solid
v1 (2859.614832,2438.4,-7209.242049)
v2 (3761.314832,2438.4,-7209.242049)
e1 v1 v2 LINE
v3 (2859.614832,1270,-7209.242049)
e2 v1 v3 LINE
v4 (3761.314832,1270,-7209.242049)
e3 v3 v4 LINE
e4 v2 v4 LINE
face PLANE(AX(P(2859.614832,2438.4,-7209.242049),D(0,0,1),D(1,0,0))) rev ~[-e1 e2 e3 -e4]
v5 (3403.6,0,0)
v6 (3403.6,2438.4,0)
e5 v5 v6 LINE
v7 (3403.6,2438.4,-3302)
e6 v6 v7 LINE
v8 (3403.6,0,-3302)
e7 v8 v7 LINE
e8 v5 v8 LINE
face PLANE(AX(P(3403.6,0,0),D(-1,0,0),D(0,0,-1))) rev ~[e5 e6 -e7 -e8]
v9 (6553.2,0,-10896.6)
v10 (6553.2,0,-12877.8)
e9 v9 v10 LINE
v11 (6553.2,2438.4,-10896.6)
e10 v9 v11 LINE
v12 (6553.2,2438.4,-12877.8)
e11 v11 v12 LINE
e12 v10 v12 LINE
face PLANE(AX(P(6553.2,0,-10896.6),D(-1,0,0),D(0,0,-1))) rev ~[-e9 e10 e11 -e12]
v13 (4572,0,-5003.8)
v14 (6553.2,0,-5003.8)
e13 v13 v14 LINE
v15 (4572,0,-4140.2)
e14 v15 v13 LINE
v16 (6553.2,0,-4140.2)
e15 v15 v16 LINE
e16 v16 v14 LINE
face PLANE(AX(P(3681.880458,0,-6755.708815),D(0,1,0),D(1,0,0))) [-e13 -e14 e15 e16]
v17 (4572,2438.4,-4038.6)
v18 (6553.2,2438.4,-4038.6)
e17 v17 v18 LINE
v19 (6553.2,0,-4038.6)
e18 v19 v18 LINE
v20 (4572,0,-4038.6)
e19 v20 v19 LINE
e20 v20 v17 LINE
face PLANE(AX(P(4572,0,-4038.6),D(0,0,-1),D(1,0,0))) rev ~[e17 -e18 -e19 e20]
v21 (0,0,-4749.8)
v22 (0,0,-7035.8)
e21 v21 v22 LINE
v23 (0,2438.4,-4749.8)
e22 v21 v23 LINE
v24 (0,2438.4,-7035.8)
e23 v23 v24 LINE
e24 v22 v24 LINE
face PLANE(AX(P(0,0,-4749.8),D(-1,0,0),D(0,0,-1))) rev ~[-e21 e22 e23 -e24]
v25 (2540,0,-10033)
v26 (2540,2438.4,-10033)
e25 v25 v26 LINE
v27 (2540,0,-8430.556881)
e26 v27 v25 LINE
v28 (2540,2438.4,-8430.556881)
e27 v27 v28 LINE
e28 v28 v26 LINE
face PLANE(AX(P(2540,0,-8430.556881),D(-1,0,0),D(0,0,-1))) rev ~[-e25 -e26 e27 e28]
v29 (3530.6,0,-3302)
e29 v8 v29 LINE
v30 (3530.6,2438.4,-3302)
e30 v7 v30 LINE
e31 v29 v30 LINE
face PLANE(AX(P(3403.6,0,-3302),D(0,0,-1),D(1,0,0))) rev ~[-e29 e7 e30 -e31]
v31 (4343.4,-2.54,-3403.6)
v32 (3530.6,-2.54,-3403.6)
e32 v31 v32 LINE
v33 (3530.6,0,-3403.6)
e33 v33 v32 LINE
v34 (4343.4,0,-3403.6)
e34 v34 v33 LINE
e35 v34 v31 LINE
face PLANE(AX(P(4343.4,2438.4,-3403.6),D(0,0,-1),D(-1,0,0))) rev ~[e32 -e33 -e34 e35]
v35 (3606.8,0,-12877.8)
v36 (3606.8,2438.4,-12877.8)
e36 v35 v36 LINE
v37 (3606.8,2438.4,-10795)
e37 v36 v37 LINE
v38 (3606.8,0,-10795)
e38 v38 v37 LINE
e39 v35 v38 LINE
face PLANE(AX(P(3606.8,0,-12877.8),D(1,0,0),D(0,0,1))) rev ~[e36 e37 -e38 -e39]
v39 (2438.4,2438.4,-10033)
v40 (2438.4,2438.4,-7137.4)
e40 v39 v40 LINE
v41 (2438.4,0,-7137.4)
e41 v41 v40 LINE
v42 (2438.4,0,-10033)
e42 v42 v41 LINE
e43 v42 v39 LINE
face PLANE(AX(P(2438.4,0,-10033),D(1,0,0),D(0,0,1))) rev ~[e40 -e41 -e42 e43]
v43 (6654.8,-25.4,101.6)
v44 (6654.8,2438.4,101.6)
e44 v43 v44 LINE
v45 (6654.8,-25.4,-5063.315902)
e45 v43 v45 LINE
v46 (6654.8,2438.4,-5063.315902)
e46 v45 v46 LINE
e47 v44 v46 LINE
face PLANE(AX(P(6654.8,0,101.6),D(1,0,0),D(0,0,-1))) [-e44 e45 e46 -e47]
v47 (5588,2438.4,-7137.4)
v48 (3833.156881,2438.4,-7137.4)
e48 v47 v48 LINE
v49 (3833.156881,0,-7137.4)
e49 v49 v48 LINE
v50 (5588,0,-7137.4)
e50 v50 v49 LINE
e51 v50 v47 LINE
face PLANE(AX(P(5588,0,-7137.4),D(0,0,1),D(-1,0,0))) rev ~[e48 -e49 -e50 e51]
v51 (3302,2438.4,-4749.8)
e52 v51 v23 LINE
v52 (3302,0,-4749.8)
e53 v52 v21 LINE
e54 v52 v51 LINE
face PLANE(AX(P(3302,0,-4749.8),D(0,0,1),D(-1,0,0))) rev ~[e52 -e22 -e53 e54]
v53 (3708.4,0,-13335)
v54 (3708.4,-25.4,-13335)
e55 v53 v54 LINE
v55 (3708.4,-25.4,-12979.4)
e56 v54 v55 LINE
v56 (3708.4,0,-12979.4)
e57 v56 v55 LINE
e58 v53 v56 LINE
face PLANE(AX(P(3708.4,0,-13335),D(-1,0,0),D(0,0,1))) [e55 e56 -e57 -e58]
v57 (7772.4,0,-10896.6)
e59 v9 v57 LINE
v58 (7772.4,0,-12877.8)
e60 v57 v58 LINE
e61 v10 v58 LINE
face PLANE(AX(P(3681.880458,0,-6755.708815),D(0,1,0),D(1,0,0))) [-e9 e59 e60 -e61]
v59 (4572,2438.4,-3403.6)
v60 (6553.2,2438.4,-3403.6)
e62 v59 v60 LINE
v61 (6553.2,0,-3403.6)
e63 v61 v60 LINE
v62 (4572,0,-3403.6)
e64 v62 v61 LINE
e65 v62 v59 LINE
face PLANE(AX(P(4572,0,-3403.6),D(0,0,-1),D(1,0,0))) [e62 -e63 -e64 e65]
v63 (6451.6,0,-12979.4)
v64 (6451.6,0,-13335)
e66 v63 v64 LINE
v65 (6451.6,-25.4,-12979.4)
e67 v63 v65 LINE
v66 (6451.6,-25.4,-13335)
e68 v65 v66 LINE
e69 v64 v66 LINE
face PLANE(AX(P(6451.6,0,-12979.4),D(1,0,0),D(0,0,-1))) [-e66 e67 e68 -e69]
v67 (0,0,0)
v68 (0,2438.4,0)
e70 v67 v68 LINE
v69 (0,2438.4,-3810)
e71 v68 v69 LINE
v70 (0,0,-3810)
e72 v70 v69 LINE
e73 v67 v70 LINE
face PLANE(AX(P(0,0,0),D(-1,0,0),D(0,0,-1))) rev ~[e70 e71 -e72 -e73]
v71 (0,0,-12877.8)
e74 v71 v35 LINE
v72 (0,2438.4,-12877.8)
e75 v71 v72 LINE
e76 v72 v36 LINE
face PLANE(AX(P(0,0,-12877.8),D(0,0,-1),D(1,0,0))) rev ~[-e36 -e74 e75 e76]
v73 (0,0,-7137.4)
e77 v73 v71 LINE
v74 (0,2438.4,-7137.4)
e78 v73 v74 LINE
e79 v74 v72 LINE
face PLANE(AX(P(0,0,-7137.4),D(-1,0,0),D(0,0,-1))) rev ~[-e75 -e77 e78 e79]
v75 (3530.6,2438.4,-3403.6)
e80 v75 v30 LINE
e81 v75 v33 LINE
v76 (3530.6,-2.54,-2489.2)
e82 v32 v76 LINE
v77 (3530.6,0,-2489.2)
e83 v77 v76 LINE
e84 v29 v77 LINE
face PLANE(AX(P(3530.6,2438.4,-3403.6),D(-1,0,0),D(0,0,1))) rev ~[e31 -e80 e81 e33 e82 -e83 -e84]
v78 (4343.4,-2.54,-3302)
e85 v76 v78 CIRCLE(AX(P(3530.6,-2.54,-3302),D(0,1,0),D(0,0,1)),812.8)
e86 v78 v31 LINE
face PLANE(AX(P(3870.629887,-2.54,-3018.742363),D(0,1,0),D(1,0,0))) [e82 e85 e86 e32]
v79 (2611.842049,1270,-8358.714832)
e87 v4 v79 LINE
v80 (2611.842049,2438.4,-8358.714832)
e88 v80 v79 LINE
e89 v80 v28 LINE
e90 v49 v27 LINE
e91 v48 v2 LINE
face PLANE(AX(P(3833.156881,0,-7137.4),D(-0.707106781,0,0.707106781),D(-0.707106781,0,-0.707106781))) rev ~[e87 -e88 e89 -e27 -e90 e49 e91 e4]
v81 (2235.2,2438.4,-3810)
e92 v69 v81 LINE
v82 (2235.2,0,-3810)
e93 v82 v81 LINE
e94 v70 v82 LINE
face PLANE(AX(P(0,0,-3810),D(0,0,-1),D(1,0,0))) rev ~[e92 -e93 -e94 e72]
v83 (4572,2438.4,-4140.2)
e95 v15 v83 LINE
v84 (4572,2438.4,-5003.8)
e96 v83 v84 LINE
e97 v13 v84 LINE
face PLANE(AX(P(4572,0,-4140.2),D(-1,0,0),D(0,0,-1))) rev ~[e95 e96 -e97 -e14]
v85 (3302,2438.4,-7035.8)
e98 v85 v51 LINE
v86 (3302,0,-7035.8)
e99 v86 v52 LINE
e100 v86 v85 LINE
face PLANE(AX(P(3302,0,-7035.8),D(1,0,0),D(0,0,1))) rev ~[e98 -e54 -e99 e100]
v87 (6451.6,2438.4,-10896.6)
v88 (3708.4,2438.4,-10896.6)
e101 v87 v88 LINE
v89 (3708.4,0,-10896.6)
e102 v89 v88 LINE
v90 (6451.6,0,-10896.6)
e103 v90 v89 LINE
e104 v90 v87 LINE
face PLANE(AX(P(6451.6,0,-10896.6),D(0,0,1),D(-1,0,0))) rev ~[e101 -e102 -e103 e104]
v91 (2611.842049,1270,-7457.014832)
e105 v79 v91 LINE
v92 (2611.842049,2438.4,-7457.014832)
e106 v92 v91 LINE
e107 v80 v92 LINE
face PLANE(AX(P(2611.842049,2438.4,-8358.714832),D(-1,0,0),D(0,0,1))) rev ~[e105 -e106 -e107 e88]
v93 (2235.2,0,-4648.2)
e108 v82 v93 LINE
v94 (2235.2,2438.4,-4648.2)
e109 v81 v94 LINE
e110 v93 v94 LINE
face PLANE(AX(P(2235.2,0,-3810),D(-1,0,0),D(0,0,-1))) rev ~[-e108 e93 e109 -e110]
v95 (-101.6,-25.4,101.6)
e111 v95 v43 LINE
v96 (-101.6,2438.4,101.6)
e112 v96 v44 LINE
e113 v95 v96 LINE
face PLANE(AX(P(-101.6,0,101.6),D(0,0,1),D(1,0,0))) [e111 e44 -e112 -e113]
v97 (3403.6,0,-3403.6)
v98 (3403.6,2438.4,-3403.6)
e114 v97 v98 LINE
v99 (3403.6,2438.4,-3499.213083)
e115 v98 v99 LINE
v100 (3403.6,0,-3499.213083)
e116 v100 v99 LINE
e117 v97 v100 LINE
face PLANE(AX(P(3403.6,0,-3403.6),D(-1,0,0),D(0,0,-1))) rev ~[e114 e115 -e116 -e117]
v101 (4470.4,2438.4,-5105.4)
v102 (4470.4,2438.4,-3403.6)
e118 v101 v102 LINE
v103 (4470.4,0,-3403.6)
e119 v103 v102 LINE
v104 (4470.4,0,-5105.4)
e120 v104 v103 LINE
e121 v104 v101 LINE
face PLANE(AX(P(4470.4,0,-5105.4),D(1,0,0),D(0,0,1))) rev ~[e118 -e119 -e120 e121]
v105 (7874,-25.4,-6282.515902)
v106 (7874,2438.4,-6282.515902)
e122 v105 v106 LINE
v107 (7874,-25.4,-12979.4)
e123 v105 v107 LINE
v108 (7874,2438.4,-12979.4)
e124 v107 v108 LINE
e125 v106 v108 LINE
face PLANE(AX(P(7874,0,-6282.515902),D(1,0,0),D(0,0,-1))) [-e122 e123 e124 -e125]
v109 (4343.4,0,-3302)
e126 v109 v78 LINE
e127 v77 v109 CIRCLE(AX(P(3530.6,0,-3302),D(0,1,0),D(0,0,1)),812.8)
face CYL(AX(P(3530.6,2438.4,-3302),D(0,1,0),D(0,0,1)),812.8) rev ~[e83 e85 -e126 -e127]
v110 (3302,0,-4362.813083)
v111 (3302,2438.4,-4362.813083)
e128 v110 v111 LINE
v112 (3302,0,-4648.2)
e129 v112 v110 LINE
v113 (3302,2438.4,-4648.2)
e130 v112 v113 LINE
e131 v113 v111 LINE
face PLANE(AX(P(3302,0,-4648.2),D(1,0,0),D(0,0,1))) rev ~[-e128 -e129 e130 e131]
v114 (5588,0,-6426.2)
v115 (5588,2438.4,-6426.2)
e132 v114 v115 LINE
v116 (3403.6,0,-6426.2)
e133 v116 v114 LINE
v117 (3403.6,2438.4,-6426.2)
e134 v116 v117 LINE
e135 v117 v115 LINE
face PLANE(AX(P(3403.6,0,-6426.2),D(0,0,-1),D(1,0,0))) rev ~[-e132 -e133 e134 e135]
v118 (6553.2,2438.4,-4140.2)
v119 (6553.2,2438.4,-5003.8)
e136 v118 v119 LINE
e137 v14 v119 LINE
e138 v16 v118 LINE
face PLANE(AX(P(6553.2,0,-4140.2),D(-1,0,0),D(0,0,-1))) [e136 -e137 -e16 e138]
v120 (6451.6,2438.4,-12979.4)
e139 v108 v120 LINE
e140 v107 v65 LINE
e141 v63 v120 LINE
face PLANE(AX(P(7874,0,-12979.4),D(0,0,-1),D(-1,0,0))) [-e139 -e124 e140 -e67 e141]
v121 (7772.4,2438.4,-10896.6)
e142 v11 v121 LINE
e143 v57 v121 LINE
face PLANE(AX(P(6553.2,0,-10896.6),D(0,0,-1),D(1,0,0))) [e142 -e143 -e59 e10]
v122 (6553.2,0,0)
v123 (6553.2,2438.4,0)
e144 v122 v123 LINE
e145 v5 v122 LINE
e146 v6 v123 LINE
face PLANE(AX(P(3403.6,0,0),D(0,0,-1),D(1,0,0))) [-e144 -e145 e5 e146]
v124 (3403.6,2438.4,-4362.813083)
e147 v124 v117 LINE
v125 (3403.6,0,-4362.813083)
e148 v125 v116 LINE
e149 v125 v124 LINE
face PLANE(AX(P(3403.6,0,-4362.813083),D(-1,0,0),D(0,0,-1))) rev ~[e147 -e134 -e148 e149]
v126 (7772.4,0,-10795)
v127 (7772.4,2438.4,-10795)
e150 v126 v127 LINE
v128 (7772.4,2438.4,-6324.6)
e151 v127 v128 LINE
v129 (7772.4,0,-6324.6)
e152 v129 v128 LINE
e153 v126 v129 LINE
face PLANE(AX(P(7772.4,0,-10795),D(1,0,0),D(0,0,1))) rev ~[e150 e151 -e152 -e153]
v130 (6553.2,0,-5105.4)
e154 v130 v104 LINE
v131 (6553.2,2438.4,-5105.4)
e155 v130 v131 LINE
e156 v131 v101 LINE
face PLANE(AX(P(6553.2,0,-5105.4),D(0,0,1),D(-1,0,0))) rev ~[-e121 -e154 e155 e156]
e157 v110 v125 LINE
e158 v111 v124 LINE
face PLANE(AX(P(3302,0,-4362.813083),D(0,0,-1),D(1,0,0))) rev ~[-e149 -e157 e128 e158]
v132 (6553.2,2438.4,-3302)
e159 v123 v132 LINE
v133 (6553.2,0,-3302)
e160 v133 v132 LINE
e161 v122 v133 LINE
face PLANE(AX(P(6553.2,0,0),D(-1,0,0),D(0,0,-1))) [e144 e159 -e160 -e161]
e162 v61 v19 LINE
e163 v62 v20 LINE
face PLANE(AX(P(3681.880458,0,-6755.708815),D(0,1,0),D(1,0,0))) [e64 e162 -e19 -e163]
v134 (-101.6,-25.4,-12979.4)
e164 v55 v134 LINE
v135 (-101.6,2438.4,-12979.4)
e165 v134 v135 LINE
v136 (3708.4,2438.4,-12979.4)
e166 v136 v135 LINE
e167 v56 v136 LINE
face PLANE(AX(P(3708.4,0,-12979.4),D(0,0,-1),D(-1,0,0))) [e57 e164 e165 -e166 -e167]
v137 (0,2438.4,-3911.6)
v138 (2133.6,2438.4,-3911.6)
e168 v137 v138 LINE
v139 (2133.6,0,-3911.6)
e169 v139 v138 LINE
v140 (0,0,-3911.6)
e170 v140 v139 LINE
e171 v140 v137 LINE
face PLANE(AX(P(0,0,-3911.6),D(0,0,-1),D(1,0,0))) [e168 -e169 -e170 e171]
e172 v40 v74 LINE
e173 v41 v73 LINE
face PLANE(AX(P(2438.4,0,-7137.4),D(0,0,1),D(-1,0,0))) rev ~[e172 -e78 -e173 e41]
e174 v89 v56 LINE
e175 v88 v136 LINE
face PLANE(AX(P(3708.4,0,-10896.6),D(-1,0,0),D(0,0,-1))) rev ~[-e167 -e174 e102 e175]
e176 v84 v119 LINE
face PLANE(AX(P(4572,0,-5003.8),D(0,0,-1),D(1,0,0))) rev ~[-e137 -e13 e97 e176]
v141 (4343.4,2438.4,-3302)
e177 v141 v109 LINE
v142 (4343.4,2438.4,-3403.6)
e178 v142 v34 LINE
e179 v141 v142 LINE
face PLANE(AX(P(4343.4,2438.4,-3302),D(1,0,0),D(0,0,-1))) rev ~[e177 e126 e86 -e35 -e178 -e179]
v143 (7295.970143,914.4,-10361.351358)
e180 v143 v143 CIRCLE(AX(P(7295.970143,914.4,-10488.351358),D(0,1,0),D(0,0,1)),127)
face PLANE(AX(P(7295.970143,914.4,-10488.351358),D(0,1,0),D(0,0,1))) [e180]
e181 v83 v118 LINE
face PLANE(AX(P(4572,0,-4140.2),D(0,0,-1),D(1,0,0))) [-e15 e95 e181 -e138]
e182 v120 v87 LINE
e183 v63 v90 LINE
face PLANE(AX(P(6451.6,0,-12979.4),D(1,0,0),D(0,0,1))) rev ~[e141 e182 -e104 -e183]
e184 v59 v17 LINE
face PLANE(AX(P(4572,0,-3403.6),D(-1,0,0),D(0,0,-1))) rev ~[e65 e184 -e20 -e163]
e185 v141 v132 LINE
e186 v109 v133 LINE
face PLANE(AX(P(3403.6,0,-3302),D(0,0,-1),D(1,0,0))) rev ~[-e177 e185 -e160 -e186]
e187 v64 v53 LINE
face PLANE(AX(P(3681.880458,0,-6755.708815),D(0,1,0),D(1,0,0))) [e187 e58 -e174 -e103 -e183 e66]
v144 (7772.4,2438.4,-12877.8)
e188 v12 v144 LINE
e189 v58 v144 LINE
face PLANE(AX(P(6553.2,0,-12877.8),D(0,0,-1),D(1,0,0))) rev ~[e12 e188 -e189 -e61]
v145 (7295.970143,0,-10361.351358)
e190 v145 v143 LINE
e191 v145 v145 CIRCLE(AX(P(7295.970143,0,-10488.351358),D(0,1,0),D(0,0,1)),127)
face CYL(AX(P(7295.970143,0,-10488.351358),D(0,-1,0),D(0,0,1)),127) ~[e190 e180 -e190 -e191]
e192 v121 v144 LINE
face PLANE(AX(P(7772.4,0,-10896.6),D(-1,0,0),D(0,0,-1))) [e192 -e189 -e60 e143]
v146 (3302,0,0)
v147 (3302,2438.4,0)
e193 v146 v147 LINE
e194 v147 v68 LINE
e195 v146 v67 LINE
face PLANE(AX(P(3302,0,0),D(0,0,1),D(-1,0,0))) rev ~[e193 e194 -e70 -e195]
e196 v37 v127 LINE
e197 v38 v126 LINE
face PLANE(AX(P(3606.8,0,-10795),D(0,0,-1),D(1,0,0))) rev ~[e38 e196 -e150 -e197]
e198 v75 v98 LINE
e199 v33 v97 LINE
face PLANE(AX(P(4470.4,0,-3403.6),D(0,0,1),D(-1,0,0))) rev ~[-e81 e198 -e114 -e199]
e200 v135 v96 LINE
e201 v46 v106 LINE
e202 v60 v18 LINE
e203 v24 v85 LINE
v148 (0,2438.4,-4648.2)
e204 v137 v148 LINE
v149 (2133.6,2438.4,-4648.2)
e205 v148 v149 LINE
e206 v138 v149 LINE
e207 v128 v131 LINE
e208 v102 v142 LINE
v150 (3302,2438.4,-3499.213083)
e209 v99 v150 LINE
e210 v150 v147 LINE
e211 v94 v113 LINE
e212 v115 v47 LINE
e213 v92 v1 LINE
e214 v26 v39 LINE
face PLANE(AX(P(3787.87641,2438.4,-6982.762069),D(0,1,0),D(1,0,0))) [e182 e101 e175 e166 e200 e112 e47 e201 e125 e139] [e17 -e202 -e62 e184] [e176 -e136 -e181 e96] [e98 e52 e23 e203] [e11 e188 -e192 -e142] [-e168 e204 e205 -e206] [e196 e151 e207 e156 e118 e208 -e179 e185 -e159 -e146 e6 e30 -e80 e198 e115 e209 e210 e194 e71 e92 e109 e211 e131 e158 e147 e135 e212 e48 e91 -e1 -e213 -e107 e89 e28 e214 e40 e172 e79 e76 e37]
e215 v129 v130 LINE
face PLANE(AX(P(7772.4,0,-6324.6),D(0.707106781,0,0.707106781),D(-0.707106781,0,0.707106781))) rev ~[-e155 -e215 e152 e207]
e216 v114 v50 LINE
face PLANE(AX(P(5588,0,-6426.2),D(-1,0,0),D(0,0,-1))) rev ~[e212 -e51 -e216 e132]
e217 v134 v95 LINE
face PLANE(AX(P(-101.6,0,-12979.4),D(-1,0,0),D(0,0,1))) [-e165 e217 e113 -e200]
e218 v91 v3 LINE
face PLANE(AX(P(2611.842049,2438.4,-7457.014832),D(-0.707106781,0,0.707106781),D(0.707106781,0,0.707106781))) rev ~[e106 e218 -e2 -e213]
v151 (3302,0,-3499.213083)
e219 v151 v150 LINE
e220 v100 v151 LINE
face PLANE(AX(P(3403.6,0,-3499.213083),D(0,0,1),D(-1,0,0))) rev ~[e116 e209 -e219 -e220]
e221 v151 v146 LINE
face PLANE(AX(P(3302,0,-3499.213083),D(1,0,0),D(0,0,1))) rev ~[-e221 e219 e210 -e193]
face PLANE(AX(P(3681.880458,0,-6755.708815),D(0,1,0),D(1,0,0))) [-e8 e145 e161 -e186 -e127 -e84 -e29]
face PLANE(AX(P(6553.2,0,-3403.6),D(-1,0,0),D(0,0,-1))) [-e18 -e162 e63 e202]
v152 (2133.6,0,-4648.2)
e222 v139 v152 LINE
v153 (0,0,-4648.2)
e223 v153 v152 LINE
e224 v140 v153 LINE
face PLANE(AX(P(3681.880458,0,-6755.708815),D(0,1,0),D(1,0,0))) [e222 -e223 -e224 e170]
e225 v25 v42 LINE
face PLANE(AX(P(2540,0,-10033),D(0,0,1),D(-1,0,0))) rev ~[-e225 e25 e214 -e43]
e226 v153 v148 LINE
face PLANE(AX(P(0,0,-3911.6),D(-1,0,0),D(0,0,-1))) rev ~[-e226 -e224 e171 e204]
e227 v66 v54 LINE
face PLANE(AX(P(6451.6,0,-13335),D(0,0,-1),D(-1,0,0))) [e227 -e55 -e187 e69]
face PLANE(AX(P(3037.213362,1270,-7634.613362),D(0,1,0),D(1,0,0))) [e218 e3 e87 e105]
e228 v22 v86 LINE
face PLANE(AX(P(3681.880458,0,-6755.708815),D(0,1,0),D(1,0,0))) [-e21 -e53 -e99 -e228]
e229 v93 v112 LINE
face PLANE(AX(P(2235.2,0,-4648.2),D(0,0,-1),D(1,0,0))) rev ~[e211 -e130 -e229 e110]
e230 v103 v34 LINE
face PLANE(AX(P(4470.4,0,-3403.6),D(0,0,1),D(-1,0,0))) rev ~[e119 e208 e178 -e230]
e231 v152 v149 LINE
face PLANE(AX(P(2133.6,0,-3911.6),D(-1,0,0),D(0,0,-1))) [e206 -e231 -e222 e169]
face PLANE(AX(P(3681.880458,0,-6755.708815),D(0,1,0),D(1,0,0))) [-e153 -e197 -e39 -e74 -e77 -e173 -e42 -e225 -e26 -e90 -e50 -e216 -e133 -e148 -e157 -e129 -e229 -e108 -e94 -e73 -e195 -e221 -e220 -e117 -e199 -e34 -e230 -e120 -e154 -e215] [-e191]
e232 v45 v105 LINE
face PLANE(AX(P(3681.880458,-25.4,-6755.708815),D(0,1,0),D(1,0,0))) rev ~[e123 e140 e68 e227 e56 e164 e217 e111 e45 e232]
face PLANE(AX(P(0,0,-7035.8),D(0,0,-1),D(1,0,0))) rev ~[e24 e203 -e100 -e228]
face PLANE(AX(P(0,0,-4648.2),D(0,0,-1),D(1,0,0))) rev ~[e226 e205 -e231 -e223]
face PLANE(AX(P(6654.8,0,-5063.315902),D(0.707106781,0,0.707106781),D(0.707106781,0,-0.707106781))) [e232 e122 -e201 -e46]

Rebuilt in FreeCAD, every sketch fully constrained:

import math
import FreeCAD as App
import Part
import Sketcher
from FreeCAD import Vector
Q = App.Units.Quantity

doc = App.newDocument("Part")
params = doc.addObject("Spreadsheet::Sheet", "Params")
for row, (alias, value) in enumerate([
    ("sketch1_width", "108 in"),
    ("sketch1_width2", "150 in"),
    ("sketch1_width3", "266 in"),
    ("sketch1_width4", "56 in"),
    ("sketch1_width5", "84 in"),
    ("pad1_length", "96 in"),
    ("sketch2_width", "150 in"),
    ("sketch2_width2", "266 in"),
    ("sketch2_width3", "56 in"),
    ("sketch2_width4", "108 in"),
    ("sketch2_height", "515 in"),
    ("pad2_length", "1 in"),
    ("sketch3_radius", "32 in"),
    ("sketch3_height", "36 in"),
    ("pocket1_length", "96.1 in"),
    ("sketch4_length", "64 in"),
    ("sketch4_width", "35.5 in"),
    ("pocket2_length", "46 in"),
    ("sketch5_diameter", "10 in"),
    ("pad3_length", "36 in"),
], start=1):
    params.set(f"A{row}", alias)
    params.set(f"B{row}", "=" + value)
    params.setAlias(f"B{row}", alias)

body = doc.addObject("PartDesign::Body", "Body")

# Sketch on XZ plane
sketch1 = body.newObject("Sketcher::SketchObject", "Sketch")
sketch1.AttachmentSupport = (doc.getObject("XZ_Plane"), [""])
sketch1.MapMode = "FlatFace"
sketch1.addGeometry(Part.LineSegment(Vector(6451.6, -10896.6, 0), Vector(3708.4, -10896.6, 0)), False)
sketch1.addGeometry(Part.LineSegment(Vector(3708.4, -10896.6, 0), Vector(3708.4, -12979.4, 0)), False)
sketch1.addGeometry(Part.LineSegment(Vector(3708.4, -12979.4, 0), Vector(-101.6, -12979.4, 0)), False)
sketch1.addGeometry(Part.LineSegment(Vector(-101.6, -12979.4, 0), Vector(-101.6, 101.6, 0)), False)
sketch1.addGeometry(Part.LineSegment(Vector(-101.6, 101.6, 0), Vector(6654.8, 101.6, 0)), False)
sketch1.addGeometry(Part.LineSegment(Vector(6654.8, 101.6, 0), Vector(6654.8, -5063.315902, 0)), False)
sketch1.addGeometry(Part.LineSegment(Vector(6654.8, -5063.315902, 0), Vector(7874, -6282.515902, 0)), False)
sketch1.addGeometry(Part.LineSegment(Vector(7874, -6282.515902, 0), Vector(7874, -12979.4, 0)), False)
sketch1.addGeometry(Part.LineSegment(Vector(7874, -12979.4, 0), Vector(6451.6, -12979.4, 0)), False)
sketch1.addGeometry(Part.LineSegment(Vector(6451.6, -12979.4, 0), Vector(6451.6, -10896.6, 0)), False)
sketch1.addGeometry(Part.LineSegment(Vector(2133.6, -3911.6, 0), Vector(0, -3911.6, 0)), False)
sketch1.addGeometry(Part.LineSegment(Vector(0, -3911.6, 0), Vector(0, -4648.2, 0)), False)
sketch1.addGeometry(Part.LineSegment(Vector(0, -4648.2, 0), Vector(2133.6, -4648.2, 0)), False)
sketch1.addGeometry(Part.LineSegment(Vector(2133.6, -4648.2, 0), Vector(2133.6, -3911.6, 0)), False)
sketch1.addGeometry(Part.LineSegment(Vector(3302, -7035.8, 0), Vector(3302, -4749.8, 0)), False)
sketch1.addGeometry(Part.LineSegment(Vector(3302, -4749.8, 0), Vector(0, -4749.8, 0)), False)
sketch1.addGeometry(Part.LineSegment(Vector(0, -4749.8, 0), Vector(0, -7035.8, 0)), False)
sketch1.addGeometry(Part.LineSegment(Vector(0, -7035.8, 0), Vector(3302, -7035.8, 0)), False)
sketch1.addGeometry(Part.LineSegment(Vector(5588, -7137.4, 0), Vector(3833.156881, -7137.4, 0)), False)
sketch1.addGeometry(Part.LineSegment(Vector(3833.156881, -7137.4, 0), Vector(2540, -8430.556881, 0)), False)
sketch1.addGeometry(Part.LineSegment(Vector(2540, -8430.556881, 0), Vector(2540, -10033, 0)), False)
sketch1.addGeometry(Part.LineSegment(Vector(2540, -10033, 0), Vector(2438.4, -10033, 0)), False)
sketch1.addGeometry(Part.LineSegment(Vector(2438.4, -10033, 0), Vector(2438.4, -7137.4, 0)), False)
sketch1.addGeometry(Part.LineSegment(Vector(2438.4, -7137.4, 0), Vector(0, -7137.4, 0)), False)
sketch1.addGeometry(Part.LineSegment(Vector(0, -7137.4, 0), Vector(0, -12877.8, 0)), False)
sketch1.addGeometry(Part.LineSegment(Vector(0, -12877.8, 0), Vector(3606.8, -12877.8, 0)), False)
sketch1.addGeometry(Part.LineSegment(Vector(3606.8, -12877.8, 0), Vector(3606.8, -10795, 0)), False)
sketch1.addGeometry(Part.LineSegment(Vector(3606.8, -10795, 0), Vector(7772.4, -10795, 0)), False)
sketch1.addGeometry(Part.LineSegment(Vector(7772.4, -10795, 0), Vector(7772.4, -6324.6, 0)), False)
sketch1.addGeometry(Part.LineSegment(Vector(7772.4, -6324.6, 0), Vector(6553.2, -5105.4, 0)), False)
sketch1.addGeometry(Part.LineSegment(Vector(6553.2, -5105.4, 0), Vector(4470.4, -5105.4, 0)), False)
sketch1.addGeometry(Part.LineSegment(Vector(4470.4, -5105.4, 0), Vector(4470.4, -3403.6, 0)), False)
sketch1.addGeometry(Part.LineSegment(Vector(4470.4, -3403.6, 0), Vector(3403.6, -3403.6, 0)), False)
sketch1.addGeometry(Part.LineSegment(Vector(3403.6, -3403.6, 0), Vector(3403.6, -3499.213083, 0)), False)
sketch1.addGeometry(Part.LineSegment(Vector(3403.6, -3499.213083, 0), Vector(3302, -3499.213083, 0)), False)
sketch1.addGeometry(Part.LineSegment(Vector(3302, -3499.213083, 0), Vector(3302, 0, 0)), False)
sketch1.addGeometry(Part.LineSegment(Vector(3302, 0, 0), Vector(0, 0, 0)), False)
sketch1.addGeometry(Part.LineSegment(Vector(0, 0, 0), Vector(0, -3810, 0)), False)
sketch1.addGeometry(Part.LineSegment(Vector(0, -3810, 0), Vector(2235.2, -3810, 0)), False)
sketch1.addGeometry(Part.LineSegment(Vector(2235.2, -3810, 0), Vector(2235.2, -4648.2, 0)), False)
sketch1.addGeometry(Part.LineSegment(Vector(2235.2, -4648.2, 0), Vector(3302, -4648.2, 0)), False)
sketch1.addGeometry(Part.LineSegment(Vector(3302, -4648.2, 0), Vector(3302, -4362.813083, 0)), False)
sketch1.addGeometry(Part.LineSegment(Vector(3302, -4362.813083, 0), Vector(3403.6, -4362.813083, 0)), False)
sketch1.addGeometry(Part.LineSegment(Vector(3403.6, -4362.813083, 0), Vector(3403.6, -6426.2, 0)), False)
sketch1.addGeometry(Part.LineSegment(Vector(3403.6, -6426.2, 0), Vector(5588, -6426.2, 0)), False)
sketch1.addGeometry(Part.LineSegment(Vector(5588, -6426.2, 0), Vector(5588, -7137.4, 0)), False)
sketch1.addGeometry(Part.LineSegment(Vector(6553.2, 0, 0), Vector(3403.6, 0, 0)), False)
sketch1.addGeometry(Part.LineSegment(Vector(3403.6, 0, 0), Vector(3403.6, -3302, 0)), False)
sketch1.addGeometry(Part.LineSegment(Vector(3403.6, -3302, 0), Vector(6553.2, -3302, 0)), False)
sketch1.addGeometry(Part.LineSegment(Vector(6553.2, -3302, 0), Vector(6553.2, 0, 0)), False)
sketch1.addGeometry(Part.LineSegment(Vector(6553.2, -3403.6, 0), Vector(4572, -3403.6, 0)), False)
sketch1.addGeometry(Part.LineSegment(Vector(4572, -3403.6, 0), Vector(4572, -4038.6, 0)), False)
sketch1.addGeometry(Part.LineSegment(Vector(4572, -4038.6, 0), Vector(6553.2, -4038.6, 0)), False)
sketch1.addGeometry(Part.LineSegment(Vector(6553.2, -4038.6, 0), Vector(6553.2, -3403.6, 0)), False)
sketch1.addGeometry(Part.LineSegment(Vector(6553.2, -4140.2, 0), Vector(4572, -4140.2, 0)), False)
sketch1.addGeometry(Part.LineSegment(Vector(4572, -4140.2, 0), Vector(4572, -5003.8, 0)), False)
sketch1.addGeometry(Part.LineSegment(Vector(4572, -5003.8, 0), Vector(6553.2, -5003.8, 0)), False)
sketch1.addGeometry(Part.LineSegment(Vector(6553.2, -5003.8, 0), Vector(6553.2, -4140.2, 0)), False)
sketch1.addGeometry(Part.LineSegment(Vector(7772.4, -10896.6, 0), Vector(6553.2, -10896.6, 0)), False)
sketch1.addGeometry(Part.LineSegment(Vector(6553.2, -10896.6, 0), Vector(6553.2, -12877.8, 0)), False)
sketch1.addGeometry(Part.LineSegment(Vector(6553.2, -12877.8, 0), Vector(7772.4, -12877.8, 0)), False)
sketch1.addGeometry(Part.LineSegment(Vector(7772.4, -12877.8, 0), Vector(7772.4, -10896.6, 0)), False)
sketch1.addConstraint(Sketcher.Constraint("Coincident", 0, 2, 1, 1))
sketch1.addConstraint(Sketcher.Constraint("Coincident", 1, 2, 2, 1))
sketch1.addConstraint(Sketcher.Constraint("Coincident", 2, 2, 3, 1))
sketch1.addConstraint(Sketcher.Constraint("Coincident", 3, 2, 4, 1))
sketch1.addConstraint(Sketcher.Constraint("Coincident", 4, 2, 5, 1))
sketch1.addConstraint(Sketcher.Constraint("Coincident", 5, 2, 6, 1))
sketch1.addConstraint(Sketcher.Constraint("Coincident", 6, 2, 7, 1))
sketch1.addConstraint(Sketcher.Constraint("Coincident", 7, 2, 8, 1))
sketch1.addConstraint(Sketcher.Constraint("Coincident", 8, 2, 9, 1))
sketch1.addConstraint(Sketcher.Constraint("Coincident", 9, 2, 0, 1))
sketch1.addConstraint(Sketcher.Constraint("Coincident", 10, 2, 11, 1))
sketch1.addConstraint(Sketcher.Constraint("Coincident", 11, 2, 12, 1))
sketch1.addConstraint(Sketcher.Constraint("Coincident", 12, 2, 13, 1))
sketch1.addConstraint(Sketcher.Constraint("Coincident", 13, 2, 10, 1))
sketch1.addConstraint(Sketcher.Constraint("Coincident", 14, 2, 15, 1))
sketch1.addConstraint(Sketcher.Constraint("Coincident", 15, 2, 16, 1))
sketch1.addConstraint(Sketcher.Constraint("Coincident", 16, 2, 17, 1))
sketch1.addConstraint(Sketcher.Constraint("Coincident", 17, 2, 14, 1))
sketch1.addConstraint(Sketcher.Constraint("Coincident", 18, 2, 19, 1))
sketch1.addConstraint(Sketcher.Constraint("Coincident", 19, 2, 20, 1))
sketch1.addConstraint(Sketcher.Constraint("Coincident", 20, 2, 21, 1))
sketch1.addConstraint(Sketcher.Constraint("Coincident", 21, 2, 22, 1))
sketch1.addConstraint(Sketcher.Constraint("Coincident", 22, 2, 23, 1))
sketch1.addConstraint(Sketcher.Constraint("Coincident", 23, 2, 24, 1))
sketch1.addConstraint(Sketcher.Constraint("Coincident", 24, 2, 25, 1))
sketch1.addConstraint(Sketcher.Constraint("Coincident", 25, 2, 26, 1))
sketch1.addConstraint(Sketcher.Constraint("Coincident", 26, 2, 27, 1))
sketch1.addConstraint(Sketcher.Constraint("Coincident", 27, 2, 28, 1))
sketch1.addConstraint(Sketcher.Constraint("Coincident", 28, 2, 29, 1))
sketch1.addConstraint(Sketcher.Constraint("Coincident", 29, 2, 30, 1))
sketch1.addConstraint(Sketcher.Constraint("Coincident", 30, 2, 31, 1))
sketch1.addConstraint(Sketcher.Constraint("Coincident", 31, 2, 32, 1))
sketch1.addConstraint(Sketcher.Constraint("Coincident", 32, 2, 33, 1))
sketch1.addConstraint(Sketcher.Constraint("Coincident", 33, 2, 34, 1))
sketch1.addConstraint(Sketcher.Constraint("Coincident", 34, 2, 35, 1))
sketch1.addConstraint(Sketcher.Constraint("Coincident", 35, 2, 36, 1))
sketch1.addConstraint(Sketcher.Constraint("Coincident", 36, 2, 37, 1))
sketch1.addConstraint(Sketcher.Constraint("Coincident", 37, 2, 38, 1))
sketch1.addConstraint(Sketcher.Constraint("Coincident", 38, 2, 39, 1))
sketch1.addConstraint(Sketcher.Constraint("Coincident", 39, 2, 40, 1))
sketch1.addConstraint(Sketcher.Constraint("Coincident", 40, 2, 41, 1))
sketch1.addConstraint(Sketcher.Constraint("Coincident", 41, 2, 42, 1))
sketch1.addConstraint(Sketcher.Constraint("Coincident", 42, 2, 43, 1))
sketch1.addConstraint(Sketcher.Constraint("Coincident", 43, 2, 44, 1))
sketch1.addConstraint(Sketcher.Constraint("Coincident", 44, 2, 45, 1))
sketch1.addConstraint(Sketcher.Constraint("Coincident", 45, 2, 18, 1))
sketch1.addConstraint(Sketcher.Constraint("Coincident", 46, 2, 47, 1))
sketch1.addConstraint(Sketcher.Constraint("Coincident", 47, 2, 48, 1))
sketch1.addConstraint(Sketcher.Constraint("Coincident", 48, 2, 49, 1))
sketch1.addConstraint(Sketcher.Constraint("Coincident", 49, 2, 46, 1))
sketch1.addConstraint(Sketcher.Constraint("Coincident", 50, 2, 51, 1))
sketch1.addConstraint(Sketcher.Constraint("Coincident", 51, 2, 52, 1))
sketch1.addConstraint(Sketcher.Constraint("Coincident", 52, 2, 53, 1))
sketch1.addConstraint(Sketcher.Constraint("Coincident", 53, 2, 50, 1))
sketch1.addConstraint(Sketcher.Constraint("Coincident", 54, 2, 55, 1))
sketch1.addConstraint(Sketcher.Constraint("Coincident", 55, 2, 56, 1))
sketch1.addConstraint(Sketcher.Constraint("Coincident", 56, 2, 57, 1))
sketch1.addConstraint(Sketcher.Constraint("Coincident", 57, 2, 54, 1))
sketch1.addConstraint(Sketcher.Constraint("Coincident", 58, 2, 59, 1))
sketch1.addConstraint(Sketcher.Constraint("Coincident", 59, 2, 60, 1))
sketch1.addConstraint(Sketcher.Constraint("Coincident", 60, 2, 61, 1))
sketch1.addConstraint(Sketcher.Constraint("Coincident", 61, 2, 58, 1))
sketch1.addConstraint(Sketcher.Constraint("Horizontal", 0))
sketch1.addConstraint(Sketcher.Constraint("Vertical", 1))
sketch1.addConstraint(Sketcher.Constraint("Horizontal", 2))
sketch1.addConstraint(Sketcher.Constraint("Vertical", 3))
sketch1.addConstraint(Sketcher.Constraint("Horizontal", 4))
sketch1.addConstraint(Sketcher.Constraint("Vertical", 5))
sketch1.addConstraint(Sketcher.Constraint("Vertical", 7))
sketch1.addConstraint(Sketcher.Constraint("Horizontal", 8))
sketch1.addConstraint(Sketcher.Constraint("Vertical", 9))
sketch1.addConstraint(Sketcher.Constraint("Horizontal", 10))
sketch1.addConstraint(Sketcher.Constraint("Vertical", 11))
sketch1.addConstraint(Sketcher.Constraint("Horizontal", 12))
sketch1.addConstraint(Sketcher.Constraint("Vertical", 13))
sketch1.addConstraint(Sketcher.Constraint("Vertical", 14))
sketch1.addConstraint(Sketcher.Constraint("Horizontal", 15))
sketch1.addConstraint(Sketcher.Constraint("Vertical", 16))
sketch1.addConstraint(Sketcher.Constraint("Horizontal", 17))
sketch1.addConstraint(Sketcher.Constraint("Horizontal", 18))
sketch1.addConstraint(Sketcher.Constraint("Vertical", 20))
sketch1.addConstraint(Sketcher.Constraint("Horizontal", 21))
sketch1.addConstraint(Sketcher.Constraint("Vertical", 22))
sketch1.addConstraint(Sketcher.Constraint("Horizontal", 23))
sketch1.addConstraint(Sketcher.Constraint("Vertical", 24))
sketch1.addConstraint(Sketcher.Constraint("Horizontal", 25))
sketch1.addConstraint(Sketcher.Constraint("Vertical", 26))
sketch1.addConstraint(Sketcher.Constraint("Horizontal", 27))
sketch1.addConstraint(Sketcher.Constraint("Vertical", 28))
sketch1.addConstraint(Sketcher.Constraint("Horizontal", 30))
sketch1.addConstraint(Sketcher.Constraint("Vertical", 31))
sketch1.addConstraint(Sketcher.Constraint("Horizontal", 32))
sketch1.addConstraint(Sketcher.Constraint("Vertical", 33))
sketch1.addConstraint(Sketcher.Constraint("Horizontal", 34))
sketch1.addConstraint(Sketcher.Constraint("Vertical", 35))
sketch1.addConstraint(Sketcher.Constraint("Horizontal", 36))
sketch1.addConstraint(Sketcher.Constraint("Vertical", 37))
sketch1.addConstraint(Sketcher.Constraint("Horizontal", 38))
sketch1.addConstraint(Sketcher.Constraint("Vertical", 39))
sketch1.addConstraint(Sketcher.Constraint("Horizontal", 40))
sketch1.addConstraint(Sketcher.Constraint("Vertical", 41))
sketch1.addConstraint(Sketcher.Constraint("Horizontal", 42))
sketch1.addConstraint(Sketcher.Constraint("Vertical", 43))
sketch1.addConstraint(Sketcher.Constraint("Horizontal", 44))
sketch1.addConstraint(Sketcher.Constraint("Vertical", 45))
sketch1.addConstraint(Sketcher.Constraint("Horizontal", 46))
sketch1.addConstraint(Sketcher.Constraint("Vertical", 47))
sketch1.addConstraint(Sketcher.Constraint("Horizontal", 48))
sketch1.addConstraint(Sketcher.Constraint("Vertical", 49))
sketch1.addConstraint(Sketcher.Constraint("Horizontal", 50))
sketch1.addConstraint(Sketcher.Constraint("Vertical", 51))
sketch1.addConstraint(Sketcher.Constraint("Horizontal", 52))
sketch1.addConstraint(Sketcher.Constraint("Vertical", 53))
sketch1.addConstraint(Sketcher.Constraint("Horizontal", 54))
sketch1.addConstraint(Sketcher.Constraint("Vertical", 55))
sketch1.addConstraint(Sketcher.Constraint("Horizontal", 56))
sketch1.addConstraint(Sketcher.Constraint("Vertical", 57))
sketch1.addConstraint(Sketcher.Constraint("Horizontal", 58))
sketch1.addConstraint(Sketcher.Constraint("Vertical", 59))
sketch1.addConstraint(Sketcher.Constraint("Horizontal", 60))
sketch1.addConstraint(Sketcher.Constraint("Vertical", 61))
sketch1.addConstraint(Sketcher.Constraint("Coincident", 36, 2, -1, 1))
sketch1.addConstraint(Sketcher.Constraint("PointOnObject", 10, 2, -2))
sketch1.addConstraint(Sketcher.Constraint("PointOnObject", 15, 2, -2))
sketch1.addConstraint(Sketcher.Constraint("PointOnObject", 23, 2, -2))
sketch1.addConstraint(Sketcher.Constraint("PointOnObject", 46, 2, -1))
sketch1.addConstraint(Sketcher.Constraint("Perpendicular", 6, 19))
sketch1.addConstraint(Sketcher.Constraint("Perpendicular", 19, 29))
sketch1.addConstraint(Sketcher.Constraint("Horizontal", 2, 2, 7, 2))
sketch1.addConstraint(Sketcher.Constraint("Horizontal", 18, 2, 22, 2))
sketch1.addConstraint(Sketcher.Constraint("Horizontal", 12, 2, 39, 2))
sketch1.addConstraint(Sketcher.Constraint("Horizontal", 32, 2, 50, 2))
sketch1.addConstraint(Sketcher.Constraint("Horizontal", 9, 2, 58, 2))
sketch1.addConstraint(Sketcher.Constraint("Horizontal", 25, 2, 59, 2))
sketch1.addConstraint(Sketcher.Constraint("Vertical", 17, 2, 34, 2))
sketch1.addConstraint(Sketcher.Constraint("Vertical", 35, 2, 40, 2))
sketch1.addConstraint(Sketcher.Constraint("Vertical", 33, 2, 42, 2))
sketch1.addConstraint(Sketcher.Constraint("Vertical", 43, 2, 46, 2))
sketch1.addConstraint(Sketcher.Constraint("Vertical", 29, 2, 48, 2))
sketch1.addConstraint(Sketcher.Constraint("Vertical", 49, 2, 52, 2))
sketch1.addConstraint(Sketcher.Constraint("Vertical", 51, 2, 54, 2))
sketch1.addConstraint(Sketcher.Constraint("Vertical", 53, 2, 56, 2))
sketch1.addConstraint(Sketcher.Constraint("Vertical", 57, 2, 58, 2))
sketch1.addConstraint(Sketcher.Constraint("Vertical", 28, 2, 60, 2))
sketch1.addConstraint(Sketcher.Constraint("Equal", 21, 34))
sketch1.addConstraint(Sketcher.Constraint("Equal", 32, 40))
sketch1.addConstraint(Sketcher.Constraint("Equal", 30, 1))
sketch1.addConstraint(Sketcher.Constraint("Equal", 9, 26))
sketch1.addConstraint(Sketcher.Constraint("Equal", 2, 37))
sketch1.addConstraint(Sketcher.Constraint("Equal", 36, 47))
sketch1.addConstraint(Sketcher.Constraint("Equal", 56, 59))
sketch1.addConstraint(Sketcher.Constraint("Equal", 6, 29))
sketch1.addConstraint(Sketcher.Constraint("DistanceX", 0, 2, 0, 1, Q("108 in")))
sketch1.addConstraint(Sketcher.Constraint("DistanceX", 2, 2, 2, 1, Q("150 in")))
sketch1.addConstraint(Sketcher.Constraint("DistanceX", 4, 1, 4, 2, Q("266 in")))
sketch1.addConstraint(Sketcher.Constraint("DistanceX", 8, 2, 8, 1, Q("56 in")))
sketch1.addConstraint(Sketcher.Constraint("DistanceX", 10, 2, 10, 1, Q("84 in")))
sketch1.addConstraint(Sketcher.Constraint("DistanceX", 15, 2, 15, 1, Q("130 in")))
sketch1.addConstraint(Sketcher.Constraint("DistanceX", 21, 2, 21, 1, Q("4 in")))
sketch1.addConstraint(Sketcher.Constraint("DistanceX", 23, 2, 23, 1, Q("96 in")))
sketch1.addConstraint(Sketcher.Constraint("DistanceX", 25, 1, 25, 2, Q("142 in")))
sketch1.addConstraint(Sketcher.Constraint("DistanceX", 27, 1, 27, 2, Q("164 in")))
sketch1.addConstraint(Sketcher.Constraint("DistanceX", 30, 2, 30, 1, Q("82 in")))
sketch1.addConstraint(Sketcher.Constraint("DistanceX", 44, 1, 44, 2, Q("86 in")))
sketch1.addConstraint(Sketcher.Constraint("DistanceX", 50, 2, 50, 1, Q("78 in")))
sketch1.addConstraint(Sketcher.Constraint("DistanceY", 3, 1, 3, 2, Q("515 in")))
sketch1.addConstraint(Sketcher.Constraint("DistanceY", 11, 2, 11, 1, Q("29 in")))
sketch1.addConstraint(Sketcher.Constraint("DistanceY", 14, 1, 14, 2, Q("90 in")))
sketch1.addConstraint(Sketcher.Constraint("DistanceY", 22, 1, 22, 2, Q("114 in")))
sketch1.addConstraint(Sketcher.Constraint("DistanceY", 24, 2, 24, 1, Q("226 in")))
sketch1.addConstraint(Sketcher.Constraint("DistanceY", 28, 1, 28, 2, Q("176 in")))
sketch1.addConstraint(Sketcher.Constraint("DistanceY", 31, 1, 31, 2, Q("67 in")))
sketch1.addConstraint(Sketcher.Constraint("DistanceY", 39, 2, 39, 1, Q("33 in")))
sketch1.addConstraint(Sketcher.Constraint("DistanceY", 45, 2, 45, 1, Q("28 in")))
sketch1.addConstraint(Sketcher.Constraint("DistanceY", 51, 2, 51, 1, Q("25 in")))
sketch1.addConstraint(Sketcher.Constraint("DistanceY", 55, 2, 55, 1, Q("34 in")))
sketch1.addConstraint(Sketcher.Constraint("Distance", 19, Q("72 in")))
sketch1.addConstraint(Sketcher.Constraint("DistanceX", -1, 1, 0, 2, Q("146 in")))
sketch1.addConstraint(Sketcher.Constraint("DistanceY", 0, 2, -1, 1, Q("429 in")))
sketch1.addConstraint(Sketcher.Constraint("DistanceY", 14, 2, -1, 1, Q("187 in")))
sketch1.addConstraint(Sketcher.Constraint("DistanceY", 29, 2, -1, 1, Q("201 in")))
sketch1.addConstraint(Sketcher.Constraint("DistanceY", 54, 2, -1, 1, Q("163 in")))
sketch1.addConstraint(Sketcher.Constraint("DistanceY", 5, 2, 5, 1, Q("5164.915902 mm")))
sketch1.addConstraint(Sketcher.Constraint("DistanceY", 33, 2, 33, 1, Q("95.613083 mm")))
sketch1.addConstraint(Sketcher.Constraint("DistanceY", 41, 1, 41, 2, Q("285.386917 mm")))
sketch1.setExpression("Constraints[152]", "Params.sketch1_width")
sketch1.setExpression("Constraints[153]", "Params.sketch1_width2")
sketch1.setExpression("Constraints[154]", "Params.sketch1_width3")
sketch1.setExpression("Constraints[155]", "Params.sketch1_width4")
sketch1.setExpression("Constraints[156]", "Params.sketch1_width5")
pad1 = body.newObject("PartDesign::Pad", "Pad")
pad1.Profile = sketch1
pad1.setExpression("Length", "Params.pad1_length")
pad1.Reversed = True

# Sketch on XZ plane
sketch2 = body.newObject("Sketcher::SketchObject", "Sketch001")
sketch2.AttachmentSupport = (doc.getObject("XZ_Plane"), [""])
sketch2.MapMode = "FlatFace"
sketch2.addGeometry(Part.LineSegment(Vector(3708.4, -12979.4, 0), Vector(-101.6, -12979.4, 0)), False)
sketch2.addGeometry(Part.LineSegment(Vector(-101.6, -12979.4, 0), Vector(-101.6, 101.6, 0)), False)
sketch2.addGeometry(Part.LineSegment(Vector(-101.6, 101.6, 0), Vector(6654.8, 101.6, 0)), False)
sketch2.addGeometry(Part.LineSegment(Vector(6654.8, 101.6, 0), Vector(6654.8, -5063.315902, 0)), False)
sketch2.addGeometry(Part.LineSegment(Vector(6654.8, -5063.315902, 0), Vector(7874, -6282.515902, 0)), False)
sketch2.addGeometry(Part.LineSegment(Vector(7874, -6282.515902, 0), Vector(7874, -12979.4, 0)), False)
sketch2.addGeometry(Part.LineSegment(Vector(7874, -12979.4, 0), Vector(6451.6, -12979.4, 0)), False)
sketch2.addGeometry(Part.LineSegment(Vector(6451.6, -12979.4, 0), Vector(6451.6, -13335, 0)), False)
sketch2.addGeometry(Part.LineSegment(Vector(6451.6, -13335, 0), Vector(3708.4, -13335, 0)), False)
sketch2.addGeometry(Part.LineSegment(Vector(3708.4, -13335, 0), Vector(3708.4, -12979.4, 0)), False)
sketch2.addConstraint(Sketcher.Constraint("Coincident", 0, 2, 1, 1))
sketch2.addConstraint(Sketcher.Constraint("Coincident", 1, 2, 2, 1))
sketch2.addConstraint(Sketcher.Constraint("Coincident", 2, 2, 3, 1))
sketch2.addConstraint(Sketcher.Constraint("Coincident", 3, 2, 4, 1))
sketch2.addConstraint(Sketcher.Constraint("Coincident", 4, 2, 5, 1))
sketch2.addConstraint(Sketcher.Constraint("Coincident", 5, 2, 6, 1))
sketch2.addConstraint(Sketcher.Constraint("Coincident", 6, 2, 7, 1))
sketch2.addConstraint(Sketcher.Constraint("Coincident", 7, 2, 8, 1))
sketch2.addConstraint(Sketcher.Constraint("Coincident", 8, 2, 9, 1))
sketch2.addConstraint(Sketcher.Constraint("Coincident", 9, 2, 0, 1))
sketch2.addConstraint(Sketcher.Constraint("Horizontal", 0))
sketch2.addConstraint(Sketcher.Constraint("Vertical", 1))
sketch2.addConstraint(Sketcher.Constraint("Horizontal", 2))
sketch2.addConstraint(Sketcher.Constraint("Vertical", 3))
sketch2.addConstraint(Sketcher.Constraint("Vertical", 5))
sketch2.addConstraint(Sketcher.Constraint("Horizontal", 6))
sketch2.addConstraint(Sketcher.Constraint("Vertical", 7))
sketch2.addConstraint(Sketcher.Constraint("Horizontal", 8))
sketch2.addConstraint(Sketcher.Constraint("Vertical", 9))
sketch2.addConstraint(Sketcher.Constraint("Horizontal", 0, 2, 5, 2))
sketch2.addConstraint(Sketcher.Constraint("DistanceX", 0, 2, 0, 1, Q("150 in")))
sketch2.addConstraint(Sketcher.Constraint("DistanceX", 2, 1, 2, 2, Q("266 in")))
sketch2.addConstraint(Sketcher.Constraint("DistanceX", 6, 2, 6, 1, Q("56 in")))
sketch2.addConstraint(Sketcher.Constraint("DistanceX", 8, 2, 8, 1, Q("108 in")))
sketch2.addConstraint(Sketcher.Constraint("DistanceY", 1, 1, 1, 2, Q("515 in")))
sketch2.addConstraint(Sketcher.Constraint("DistanceY", 7, 2, 7, 1, Q("14 in")))
sketch2.addConstraint(Sketcher.Constraint("DistanceX", 0, 2, -1, 1, Q("4 in")))
sketch2.addConstraint(Sketcher.Constraint("DistanceY", 0, 2, -1, 1, Q("511 in")))
sketch2.addConstraint(Sketcher.Constraint("Angle", 4, Q("-45 deg")))
sketch2.addConstraint(Sketcher.Constraint("DistanceY", 3, 2, 3, 1, Q("5164.915902 mm")))
sketch2.setExpression("Constraints[20]", "Params.sketch2_width")
sketch2.setExpression("Constraints[21]", "Params.sketch2_width2")
sketch2.setExpression("Constraints[22]", "Params.sketch2_width3")
sketch2.setExpression("Constraints[23]", "Params.sketch2_width4")
sketch2.setExpression("Constraints[24]", "Params.sketch2_height")
pad2 = body.newObject("PartDesign::Pad", "Pad001")
pad2.Profile = sketch2
pad2.setExpression("Length", "Params.pad2_length")

# Sketch on XZ plane
sketch3 = body.newObject("Sketcher::SketchObject", "Sketch002")
sketch3.AttachmentSupport = (doc.getObject("XZ_Plane"), [""])
sketch3.MapMode = "FlatFace"
sketch3.AttachmentOffset = App.Placement(Vector(0, 0, -96 * 25.4), App.Rotation())
sketch3.addGeometry(Part.LineSegment(Vector(3530.6, -3403.6, 0), Vector(3530.6, -2489.2, 0)), False)
sketch3.addGeometry(Part.ArcOfCircle(Part.Circle(Vector(3530.6, -3302, 0), Vector(0, 0, 1), 812.8), math.radians(0), math.radians(90)), False)
sketch3.addGeometry(Part.LineSegment(Vector(4343.4, -3302, 0), Vector(4343.4, -3403.6, 0)), False)
sketch3.addGeometry(Part.LineSegment(Vector(4343.4, -3403.6, 0), Vector(3530.6, -3403.6, 0)), False)
sketch3.addConstraint(Sketcher.Constraint("Coincident", 0, 2, 1, 2))
sketch3.addConstraint(Sketcher.Constraint("Tangent", 1, 1, 2, 1))
sketch3.addConstraint(Sketcher.Constraint("Coincident", 2, 2, 3, 1))
sketch3.addConstraint(Sketcher.Constraint("Coincident", 3, 2, 0, 1))
sketch3.addConstraint(Sketcher.Constraint("Vertical", 0))
sketch3.addConstraint(Sketcher.Constraint("Vertical", 2))
sketch3.addConstraint(Sketcher.Constraint("Horizontal", 3))
sketch3.addConstraint(Sketcher.Constraint("Vertical", 1, 3, 0, 2))
sketch3.addConstraint(Sketcher.Constraint("Radius", 1, Q("32 in")))
sketch3.addConstraint(Sketcher.Constraint("DistanceY", 0, 1, 0, 2, Q("36 in")))
sketch3.addConstraint(Sketcher.Constraint("DistanceX", -1, 1, 1, 3, Q("139 in")))
sketch3.addConstraint(Sketcher.Constraint("DistanceY", 1, 3, -1, 1, Q("130 in")))
sketch3.setExpression("Constraints[8]", "Params.sketch3_radius")
sketch3.setExpression("Constraints[9]", "Params.sketch3_height")
pocket1 = body.newObject("PartDesign::Pocket", "Pocket")
pocket1.Profile = sketch3
pocket1.setExpression("Length", "Params.pocket1_length")
pocket1.Reversed = True

# Sketch on XZ plane
sketch4 = body.newObject("Sketcher::SketchObject", "Sketch003")
sketch4.AttachmentSupport = (doc.getObject("XZ_Plane"), [""])
sketch4.MapMode = "FlatFace"
sketch4.AttachmentOffset = App.Placement(Vector(0, 0, -96 * 25.4), App.Rotation())
sketch4.addGeometry(Part.LineSegment(Vector(2611.842049, -8358.714832, 0), Vector(2611.842049, -7457.014832, 0)), False)
sketch4.addGeometry(Part.LineSegment(Vector(2611.842049, -7457.014832, 0), Vector(2859.614832, -7209.242049, 0)), False)
sketch4.addGeometry(Part.LineSegment(Vector(2859.614832, -7209.242049, 0), Vector(3761.314832, -7209.242049, 0)), False)
sketch4.addGeometry(Part.LineSegment(Vector(3761.314832, -7209.242049, 0), Vector(2611.842049, -8358.714832, 0)), False)
sketch4.addConstraint(Sketcher.Constraint("Coincident", 0, 2, 1, 1))
sketch4.addConstraint(Sketcher.Constraint("Coincident", 1, 2, 2, 1))
sketch4.addConstraint(Sketcher.Constraint("Coincident", 2, 2, 3, 1))
sketch4.addConstraint(Sketcher.Constraint("Coincident", 3, 2, 0, 1))
sketch4.addConstraint(Sketcher.Constraint("Vertical", 0))
sketch4.addConstraint(Sketcher.Constraint("Horizontal", 2))
sketch4.addConstraint(Sketcher.Constraint("Parallel", 1, 3))
sketch4.addConstraint(Sketcher.Constraint("Equal", 2, 0))
sketch4.addConstraint(Sketcher.Constraint("Distance", 3, Q("64 in")))
sketch4.addConstraint(Sketcher.Constraint("DistanceX", 2, 1, 2, 2, Q("35.5 in")))
sketch4.addConstraint(Sketcher.Constraint("DistanceX", -1, 1, 0, 2, Q("2611.842049 mm")))
sketch4.addConstraint(Sketcher.Constraint("DistanceY", 1, 2, -1, 1, Q("7209.242049 mm")))
sketch4.setExpression("Constraints[8]", "Params.sketch4_length")
sketch4.setExpression("Constraints[9]", "Params.sketch4_width")
pocket2 = body.newObject("PartDesign::Pocket", "Pocket001")
pocket2.Profile = sketch4
pocket2.setExpression("Length", "Params.pocket2_length")
pocket2.Reversed = True

# Sketch on XZ plane
sketch5 = body.newObject("Sketcher::SketchObject", "Sketch004")
sketch5.AttachmentSupport = (doc.getObject("XZ_Plane"), [""])
sketch5.MapMode = "FlatFace"
sketch5.addGeometry(Part.Circle(Vector(7295.970143, -10488.351358, 0), Vector(0, 0, 1), 127), False)
sketch5.addConstraint(Sketcher.Constraint("Diameter", 0, Q("10 in")))
sketch5.addConstraint(Sketcher.Constraint("DistanceY", 0, 3, -1, 1, Q("10488.351358 mm")))
sketch5.addConstraint(Sketcher.Constraint("DistanceX", -1, 1, 0, 3, Q("7295.970143 mm")))
sketch5.setExpression("Constraints[0]", "Params.sketch5_diameter")
pad3 = body.newObject("PartDesign::Pad", "Pad002")
pad3.Profile = sketch5
pad3.setExpression("Length", "Params.pad3_length")
pad3.Reversed = True

doc.recompute()
